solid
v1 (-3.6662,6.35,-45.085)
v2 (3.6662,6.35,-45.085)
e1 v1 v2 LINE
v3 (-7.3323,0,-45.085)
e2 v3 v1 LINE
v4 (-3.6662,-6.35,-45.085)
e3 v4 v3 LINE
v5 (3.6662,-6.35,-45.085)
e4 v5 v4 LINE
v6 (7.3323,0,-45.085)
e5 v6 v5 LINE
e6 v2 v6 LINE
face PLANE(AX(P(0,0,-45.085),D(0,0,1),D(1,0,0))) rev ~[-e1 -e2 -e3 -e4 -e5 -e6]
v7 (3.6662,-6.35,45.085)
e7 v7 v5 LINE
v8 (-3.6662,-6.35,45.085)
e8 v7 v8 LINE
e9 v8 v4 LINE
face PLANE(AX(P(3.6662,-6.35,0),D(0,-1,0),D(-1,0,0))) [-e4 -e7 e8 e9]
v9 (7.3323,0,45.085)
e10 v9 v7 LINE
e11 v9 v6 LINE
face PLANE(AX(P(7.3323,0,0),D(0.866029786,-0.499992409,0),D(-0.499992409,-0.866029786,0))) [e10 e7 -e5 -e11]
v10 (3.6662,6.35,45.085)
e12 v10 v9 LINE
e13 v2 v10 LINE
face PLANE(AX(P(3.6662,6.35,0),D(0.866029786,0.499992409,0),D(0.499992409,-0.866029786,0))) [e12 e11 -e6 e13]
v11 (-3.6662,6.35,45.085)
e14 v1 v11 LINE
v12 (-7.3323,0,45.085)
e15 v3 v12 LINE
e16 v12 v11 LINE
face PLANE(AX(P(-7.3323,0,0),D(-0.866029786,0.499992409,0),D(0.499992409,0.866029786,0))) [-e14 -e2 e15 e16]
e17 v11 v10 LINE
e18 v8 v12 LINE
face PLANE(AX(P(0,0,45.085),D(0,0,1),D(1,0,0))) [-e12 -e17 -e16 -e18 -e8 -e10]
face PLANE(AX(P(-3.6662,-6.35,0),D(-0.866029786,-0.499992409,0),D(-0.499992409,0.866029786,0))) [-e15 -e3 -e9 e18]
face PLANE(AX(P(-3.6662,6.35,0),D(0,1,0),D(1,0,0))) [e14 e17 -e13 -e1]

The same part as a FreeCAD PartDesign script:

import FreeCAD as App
import Part
import Sketcher
from FreeCAD import Vector
Q = App.Units.Quantity


def add_polygon(sketch, points):
    """Adds a closed chain of lines whose ends are joined by coincident constraints."""
    first, n = sketch.GeometryCount, len(points)
    for a, b in zip(points, points[1:] + points[:1]):
        sketch.addGeometry(Part.LineSegment(App.Vector(*a, 0), App.Vector(*b, 0)), False)
    for i in range(n):
        sketch.addConstraint(Sketcher.Constraint("Coincident", first + i, 2, first + (i + 1) % n, 1))

doc = App.newDocument("Part")
body = doc.addObject("PartDesign::Body", "Body")

# Sketch on XY plane
sketch1 = body.newObject("Sketcher::SketchObject", "Sketch")
sketch1.AttachmentSupport = (doc.getObject("XY_Plane"), [""])
sketch1.MapMode = "FlatFace"
add_polygon(sketch1, [(7, 0), (4, 6), (-4, 6), (-7, 0), (-4, -6), (4, -6)])  # lines 0-5
sketch1.addConstraint([
    Sketcher.Constraint("Horizontal", 1),
    Sketcher.Constraint("Horizontal", 4),
    Sketcher.Constraint("Symmetric", 0, 2, 3, 2, -1, 1),
    Sketcher.Constraint("Symmetric", 2, 2, 5, 2, -1, 1),
    Sketcher.Constraint("PointOnObject", 2, 2, -1),
    Sketcher.Constraint("Parallel", 2, 5),
    Sketcher.Constraint("Vertical", 1, 2, 3, 2),
    Sketcher.Constraint("DistanceY", 3, 2, 1, 2, Q("0.5 in")),
    Sketcher.Constraint("Angle", 0, Q("119.9995 deg")),
    Sketcher.Constraint("DistanceX", 2, 2, 0, 2, Q("0.433 in")),
])
pad1 = body.newObject("PartDesign::Pad", "Pad")
pad1.Profile = sketch1
pad1.Length = Q("3.55 in")
pad1.Midplane = True

doc.recompute()
